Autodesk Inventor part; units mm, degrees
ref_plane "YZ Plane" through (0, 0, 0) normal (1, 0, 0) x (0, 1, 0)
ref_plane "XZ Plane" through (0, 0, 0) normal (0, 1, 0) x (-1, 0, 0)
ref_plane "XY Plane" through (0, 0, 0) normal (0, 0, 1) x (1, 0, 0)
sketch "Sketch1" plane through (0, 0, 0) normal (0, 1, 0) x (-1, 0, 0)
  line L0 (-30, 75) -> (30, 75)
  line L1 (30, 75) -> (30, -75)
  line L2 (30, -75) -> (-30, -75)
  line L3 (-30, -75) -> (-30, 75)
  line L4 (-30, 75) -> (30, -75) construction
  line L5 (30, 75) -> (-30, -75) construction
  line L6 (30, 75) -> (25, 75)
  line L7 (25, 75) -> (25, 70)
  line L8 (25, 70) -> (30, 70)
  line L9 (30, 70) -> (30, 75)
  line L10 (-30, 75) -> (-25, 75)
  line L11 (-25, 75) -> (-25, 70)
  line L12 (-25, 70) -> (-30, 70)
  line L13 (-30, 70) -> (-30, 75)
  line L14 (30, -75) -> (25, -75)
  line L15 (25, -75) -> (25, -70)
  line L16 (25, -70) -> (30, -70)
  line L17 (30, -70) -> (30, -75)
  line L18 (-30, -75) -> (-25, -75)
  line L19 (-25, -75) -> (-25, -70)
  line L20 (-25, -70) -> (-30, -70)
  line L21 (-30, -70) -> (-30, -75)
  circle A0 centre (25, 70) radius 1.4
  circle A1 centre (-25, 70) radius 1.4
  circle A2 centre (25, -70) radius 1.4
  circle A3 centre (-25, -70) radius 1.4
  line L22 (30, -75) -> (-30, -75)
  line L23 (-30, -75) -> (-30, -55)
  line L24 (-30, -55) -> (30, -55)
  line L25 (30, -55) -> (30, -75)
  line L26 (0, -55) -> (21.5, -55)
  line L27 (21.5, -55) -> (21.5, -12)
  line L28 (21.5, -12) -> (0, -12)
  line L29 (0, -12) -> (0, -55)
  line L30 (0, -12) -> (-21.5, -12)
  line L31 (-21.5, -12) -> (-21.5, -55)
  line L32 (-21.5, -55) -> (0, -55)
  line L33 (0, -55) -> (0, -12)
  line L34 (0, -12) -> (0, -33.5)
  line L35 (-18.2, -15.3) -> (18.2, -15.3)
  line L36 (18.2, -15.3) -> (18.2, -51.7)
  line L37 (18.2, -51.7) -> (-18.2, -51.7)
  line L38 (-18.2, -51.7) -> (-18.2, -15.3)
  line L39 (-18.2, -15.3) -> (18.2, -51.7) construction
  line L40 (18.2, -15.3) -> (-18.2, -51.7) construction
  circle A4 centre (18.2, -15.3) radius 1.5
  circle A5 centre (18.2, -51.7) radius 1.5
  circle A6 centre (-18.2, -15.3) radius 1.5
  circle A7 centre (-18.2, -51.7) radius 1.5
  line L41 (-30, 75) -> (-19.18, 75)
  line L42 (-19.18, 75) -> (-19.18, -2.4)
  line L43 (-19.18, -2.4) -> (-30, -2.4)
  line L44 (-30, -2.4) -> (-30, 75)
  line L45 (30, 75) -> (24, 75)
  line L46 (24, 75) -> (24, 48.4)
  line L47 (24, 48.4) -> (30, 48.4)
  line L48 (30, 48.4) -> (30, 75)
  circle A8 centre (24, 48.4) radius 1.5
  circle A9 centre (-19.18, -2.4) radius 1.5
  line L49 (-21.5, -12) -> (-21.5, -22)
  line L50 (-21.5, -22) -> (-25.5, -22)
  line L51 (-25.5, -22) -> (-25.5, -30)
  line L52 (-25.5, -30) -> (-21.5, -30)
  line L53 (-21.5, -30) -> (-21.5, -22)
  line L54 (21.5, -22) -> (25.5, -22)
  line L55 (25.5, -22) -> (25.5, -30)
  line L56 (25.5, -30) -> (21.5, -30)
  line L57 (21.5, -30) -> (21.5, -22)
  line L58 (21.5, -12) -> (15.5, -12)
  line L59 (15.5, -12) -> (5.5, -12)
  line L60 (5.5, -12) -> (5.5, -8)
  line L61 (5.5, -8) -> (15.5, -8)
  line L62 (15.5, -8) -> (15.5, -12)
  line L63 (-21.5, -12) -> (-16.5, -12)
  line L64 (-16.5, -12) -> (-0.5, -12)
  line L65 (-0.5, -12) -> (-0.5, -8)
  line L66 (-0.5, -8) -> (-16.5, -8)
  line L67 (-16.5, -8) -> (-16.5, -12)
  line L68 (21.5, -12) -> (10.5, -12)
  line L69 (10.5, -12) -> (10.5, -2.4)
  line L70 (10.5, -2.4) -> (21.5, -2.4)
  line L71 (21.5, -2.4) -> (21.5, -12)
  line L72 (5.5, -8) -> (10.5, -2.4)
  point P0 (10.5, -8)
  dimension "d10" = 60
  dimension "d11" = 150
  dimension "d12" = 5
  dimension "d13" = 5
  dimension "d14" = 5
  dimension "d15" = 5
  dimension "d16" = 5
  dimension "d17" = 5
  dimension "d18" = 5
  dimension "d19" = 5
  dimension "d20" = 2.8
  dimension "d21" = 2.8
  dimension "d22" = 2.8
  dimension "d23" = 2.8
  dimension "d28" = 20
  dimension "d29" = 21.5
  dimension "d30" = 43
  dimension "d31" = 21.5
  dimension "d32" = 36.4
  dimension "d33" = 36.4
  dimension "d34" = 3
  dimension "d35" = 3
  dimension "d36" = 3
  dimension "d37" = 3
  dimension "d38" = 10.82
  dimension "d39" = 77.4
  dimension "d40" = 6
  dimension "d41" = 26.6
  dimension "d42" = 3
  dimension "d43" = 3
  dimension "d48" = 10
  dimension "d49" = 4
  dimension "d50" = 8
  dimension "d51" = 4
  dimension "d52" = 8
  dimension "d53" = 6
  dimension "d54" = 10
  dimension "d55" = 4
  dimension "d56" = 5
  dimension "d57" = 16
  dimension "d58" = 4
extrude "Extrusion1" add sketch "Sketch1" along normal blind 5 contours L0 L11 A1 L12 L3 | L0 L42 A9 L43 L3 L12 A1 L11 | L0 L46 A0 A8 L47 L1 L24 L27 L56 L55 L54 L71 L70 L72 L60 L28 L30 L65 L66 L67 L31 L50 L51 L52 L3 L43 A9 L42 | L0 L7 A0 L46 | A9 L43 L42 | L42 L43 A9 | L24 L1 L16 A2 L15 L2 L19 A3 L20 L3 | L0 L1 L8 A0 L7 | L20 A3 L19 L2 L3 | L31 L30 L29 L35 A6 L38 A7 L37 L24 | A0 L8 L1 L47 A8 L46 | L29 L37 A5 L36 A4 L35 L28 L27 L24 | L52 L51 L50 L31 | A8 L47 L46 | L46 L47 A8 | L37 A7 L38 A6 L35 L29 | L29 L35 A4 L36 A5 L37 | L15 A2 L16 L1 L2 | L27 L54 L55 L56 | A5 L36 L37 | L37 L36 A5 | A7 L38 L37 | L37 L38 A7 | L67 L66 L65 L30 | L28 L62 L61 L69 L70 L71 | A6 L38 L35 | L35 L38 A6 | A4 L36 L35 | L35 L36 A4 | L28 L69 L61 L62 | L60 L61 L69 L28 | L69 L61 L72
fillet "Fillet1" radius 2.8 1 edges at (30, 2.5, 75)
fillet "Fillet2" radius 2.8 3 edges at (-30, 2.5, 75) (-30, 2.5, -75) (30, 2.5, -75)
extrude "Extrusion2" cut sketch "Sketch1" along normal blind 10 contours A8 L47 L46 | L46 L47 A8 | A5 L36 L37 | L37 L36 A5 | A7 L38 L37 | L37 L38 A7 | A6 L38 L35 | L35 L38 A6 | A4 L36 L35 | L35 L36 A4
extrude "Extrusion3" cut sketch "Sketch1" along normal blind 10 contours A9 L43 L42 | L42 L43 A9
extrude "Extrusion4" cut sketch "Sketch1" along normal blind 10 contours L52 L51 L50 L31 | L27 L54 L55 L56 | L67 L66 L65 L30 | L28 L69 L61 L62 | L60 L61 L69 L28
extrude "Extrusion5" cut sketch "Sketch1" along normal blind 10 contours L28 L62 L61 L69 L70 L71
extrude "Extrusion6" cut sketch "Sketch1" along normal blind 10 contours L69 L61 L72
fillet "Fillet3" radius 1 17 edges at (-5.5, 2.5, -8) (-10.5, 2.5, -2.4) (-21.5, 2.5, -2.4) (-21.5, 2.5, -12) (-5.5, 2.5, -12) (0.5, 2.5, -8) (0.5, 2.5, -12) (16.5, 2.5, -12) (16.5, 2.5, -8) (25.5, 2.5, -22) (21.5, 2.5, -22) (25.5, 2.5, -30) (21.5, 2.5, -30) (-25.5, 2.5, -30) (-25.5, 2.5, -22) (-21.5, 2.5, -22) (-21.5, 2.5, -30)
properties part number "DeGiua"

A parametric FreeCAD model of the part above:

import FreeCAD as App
import Part
import Sketcher

V = App.Vector
Q = App.Units.Quantity


def edges_at(feature, points):
    """Names of the edges that pass closest to the given points."""
    edges = feature.Shape.Edges
    near = lambda p: min(range(len(edges)), key=lambda i: edges[i].distToShape(Part.Vertex(*p))[0])
    return sorted({f"Edge{near(p) + 1}" for p in points})


def add_polygon(sketch, points):
    """Adds a closed chain of lines whose ends are joined by coincident constraints."""
    first, n = sketch.GeometryCount, len(points)
    for a, b in zip(points, points[1:] + points[:1]):
        sketch.addGeometry(Part.LineSegment(App.Vector(*a, 0), App.Vector(*b, 0)), False)
    for i in range(n):
        sketch.addConstraint(Sketcher.Constraint("Coincident", first + i, 2, first + (i + 1) % n, 1))

doc = App.newDocument("Part")
body = doc.addObject("PartDesign::Body", "Body")

sketch1 = body.newObject("Sketcher::SketchObject", "Sketch")
sketch1.AttachmentSupport = (doc.getObject("XZ_Plane"), [""])
sketch1.MapMode = "FlatFace"
add_polygon(sketch1, [(30, 75), (30, -75), (-30, -75), (-30, 75)])
sketch1.addGeometry(Part.Circle(V(25, 70, 0), V(0, 0, 1), 1.4), False)
sketch1.addGeometry(Part.Circle(V(-25, 70, 0), V(0, 0, 1), 1.4), False)
sketch1.addGeometry(Part.Circle(V(-25, -70, 0), V(0, 0, 1), 1.4), False)
sketch1.addGeometry(Part.Circle(V(25, -70, 0), V(0, 0, 1), 1.4), False)
sketch1.addConstraint(Sketcher.Constraint("Vertical", 0))
sketch1.addConstraint(Sketcher.Constraint("Horizontal", 1))
sketch1.addConstraint(Sketcher.Constraint("Vertical", 2))
sketch1.addConstraint(Sketcher.Constraint("Horizontal", 3))
sketch1.addConstraint(Sketcher.Constraint("Equal", 4, 5))
sketch1.addConstraint(Sketcher.Constraint("Equal", 5, 6))
sketch1.addConstraint(Sketcher.Constraint("Equal", 6, 7))
sketch1.addConstraint(Sketcher.Constraint("Symmetric", 4, 3, 6, 3, -1, 1))
sketch1.addConstraint(Sketcher.Constraint("Symmetric", 5, 3, 7, 3, -1, 1))
sketch1.addConstraint(Sketcher.Constraint("Symmetric", 0, 2, 2, 2, -1, 1))
sketch1.addConstraint(Sketcher.Constraint("Symmetric", 4, 3, 5, 3, -2))
sketch1.addConstraint(Sketcher.Constraint("Diameter", 4, Q("2.8 mm")))
sketch1.addConstraint(Sketcher.Constraint("DistanceX", 1, 2, 1, 1, Q("60 mm")))
sketch1.addConstraint(Sketcher.Constraint("DistanceY", 0, 2, 0, 1, Q("150 mm")))
sketch1.addConstraint(Sketcher.Constraint("DistanceX", 7, 3, 0, 2, Q("5 mm")))
sketch1.addConstraint(Sketcher.Constraint("DistanceY", 0, 2, 7, 3, Q("5 mm")))
pad1 = body.newObject("PartDesign::Pad", "Pad")
pad1.Profile = sketch1
pad1.Length = 5
pad1.Reversed = True
doc.recompute()

fillet = body.newObject("PartDesign::Fillet", "Fillet")
fillet.Base = (pad1, edges_at(pad1, [(30, 2.5, 75)]))
fillet.Radius = 2.8
doc.recompute()

fillet2 = body.newObject("PartDesign::Fillet", "Fillet001")
fillet2.Base = (fillet, edges_at(fillet, [(-30, 2.5, 75), (-30, 2.5, -75), (30, 2.5, -75)]))
fillet2.Radius = 2.8

sketch2 = body.newObject("Sketcher::SketchObject", "Sketch001")
sketch2.AttachmentSupport = (doc.getObject("XZ_Plane"), [""])
sketch2.MapMode = "FlatFace"
sketch2.addGeometry(Part.Circle(V(-24, 48.4, 0), V(0, 0, 1), 1.5), False)
sketch2.addGeometry(Part.Circle(V(-18.2, -51.7, 0), V(0, 0, 1), 1.5), False)
sketch2.addGeometry(Part.Circle(V(18.2, -51.7, 0), V(0, 0, 1), 1.5), False)
sketch2.addGeometry(Part.Circle(V(18.2, -15.3, 0), V(0, 0, 1), 1.5), False)
sketch2.addGeometry(Part.Circle(V(-18.2, -15.3, 0), V(0, 0, 1), 1.5), False)
sketch2.addConstraint(Sketcher.Constraint("Equal", 0, 1))
sketch2.addConstraint(Sketcher.Constraint("Equal", 1, 2))
sketch2.addConstraint(Sketcher.Constraint("Equal", 2, 3))
sketch2.addConstraint(Sketcher.Constraint("Equal", 3, 4))
sketch2.addConstraint(Sketcher.Constraint("Symmetric", 1, 3, 2, 3, -2))
sketch2.addConstraint(Sketcher.Constraint("Symmetric", 3, 3, 4, 3, -2))
sketch2.addConstraint(Sketcher.Constraint("Vertical", 2, 3, 3, 3))
sketch2.addConstraint(Sketcher.Constraint("Diameter", 0, Q("3 mm")))
sketch2.addConstraint(Sketcher.Constraint("DistanceX", 1, 3, 2, 3, Q("36.4 mm")))
sketch2.addConstraint(Sketcher.Constraint("DistanceY", 2, 3, 3, 3, Q("36.4 mm")))
sketch2.addConstraint(Sketcher.Constraint("DistanceX", 0, 3, -1, 1, Q("24 mm")))
sketch2.addConstraint(Sketcher.Constraint("DistanceY", -1, 1, 0, 3, Q("48.4 mm")))
sketch2.addConstraint(Sketcher.Constraint("DistanceY", 1, 3, -1, 1, Q("51.7 mm")))
pocket1 = body.newObject("PartDesign::Pocket", "Pocket")
pocket1.Profile = sketch2
pocket1.Length = 10

sketch3 = body.newObject("Sketcher::SketchObject", "Sketch002")
sketch3.AttachmentSupport = (doc.getObject("XZ_Plane"), [""])
sketch3.MapMode = "FlatFace"
sketch3.addGeometry(Part.Circle(V(19.2, -2.4, 0), V(0, 0, 1), 1.5), False)
sketch3.addConstraint(Sketcher.Constraint("Diameter", 0, Q("3 mm")))
sketch3.addConstraint(Sketcher.Constraint("DistanceY", 0, 3, -1, 1, Q("2.4 mm")))
sketch3.addConstraint(Sketcher.Constraint("DistanceX", -1, 1, 0, 3, Q("19.18 mm")))
pocket2 = body.newObject("PartDesign::Pocket", "Pocket001")
pocket2.Profile = sketch3
pocket2.Length = 10

sketch4 = body.newObject("Sketcher::SketchObject", "Sketch003")
sketch4.AttachmentSupport = (doc.getObject("XZ_Plane"), [""])
sketch4.MapMode = "FlatFace"
add_polygon(sketch4, [(25.5, -30), (21.5, -30), (21.5, -22), (25.5, -22)])
add_polygon(sketch4, [(-21.5, -22), (-21.5, -30), (-25.5, -30), (-25.5, -22)])
add_polygon(sketch4, [(16.5, -8), (16.5, -12), (0.5, -12), (0.5, -8)])
add_polygon(sketch4, [(-15.5, -12), (-15.5, -8), (-5.5, -8), (-5.5, -12)])
sketch4.addConstraint(Sketcher.Constraint("Horizontal", 0))
sketch4.addConstraint(Sketcher.Constraint("Vertical", 1))
sketch4.addConstraint(Sketcher.Constraint("Horizontal", 2))
sketch4.addConstraint(Sketcher.Constraint("Vertical", 3))
sketch4.addConstraint(Sketcher.Constraint("Vertical", 4))
sketch4.addConstraint(Sketcher.Constraint("Horizontal", 5))
sketch4.addConstraint(Sketcher.Constraint("Vertical", 6))
sketch4.addConstraint(Sketcher.Constraint("Horizontal", 7))
sketch4.addConstraint(Sketcher.Constraint("Vertical", 8))
sketch4.addConstraint(Sketcher.Constraint("Horizontal", 9))
sketch4.addConstraint(Sketcher.Constraint("Vertical", 10))
sketch4.addConstraint(Sketcher.Constraint("Horizontal", 11))
sketch4.addConstraint(Sketcher.Constraint("Vertical", 12))
sketch4.addConstraint(Sketcher.Constraint("Horizontal", 13))
sketch4.addConstraint(Sketcher.Constraint("Vertical", 14))
sketch4.addConstraint(Sketcher.Constraint("Horizontal", 15))
sketch4.addConstraint(Sketcher.Constraint("Symmetric", 0, 2, 4, 2, -2))
sketch4.addConstraint(Sketcher.Constraint("Symmetric", 2, 2, 6, 2, -2))
sketch4.addConstraint(Sketcher.Constraint("Horizontal", 11, 2, 12, 2))
sketch4.addConstraint(Sketcher.Constraint("Horizontal", 9, 2, 14, 2))
sketch4.addConstraint(Sketcher.Constraint("Equal", 7, 8))
sketch4.addConstraint(Sketcher.Constraint("DistanceX", 0, 2, 0, 1, Q("4 mm")))
sketch4.addConstraint(Sketcher.Constraint("DistanceX", 9, 2, 9, 1, Q("16 mm")))
sketch4.addConstraint(Sketcher.Constraint("DistanceX", 13, 1, 13, 2, Q("10 mm")))
sketch4.addConstraint(Sketcher.Constraint("DistanceY", 1, 1, 1, 2, Q("8 mm")))
sketch4.addConstraint(Sketcher.Constraint("DistanceY", 10, 2, -1, 1, Q("8 mm")))
sketch4.addConstraint(Sketcher.Constraint("DistanceX", 4, 2, 0, 2, Q("43 mm")))
sketch4.addConstraint(Sketcher.Constraint("DistanceX", 8, 2, 1, 2, Q("5 mm")))
sketch4.addConstraint(Sketcher.Constraint("DistanceY", 1, 2, 8, 2, Q("10 mm")))
sketch4.addConstraint(Sketcher.Constraint("DistanceX", 7, 2, 12, 2, Q("6 mm")))
pocket3 = body.newObject("PartDesign::Pocket", "Pocket002")
pocket3.Profile = sketch4
pocket3.Length = 10

sketch5 = body.newObject("Sketcher::SketchObject", "Sketch004")
sketch5.AttachmentSupport = (doc.getObject("XZ_Plane"), [""])
sketch5.MapMode = "FlatFace"
add_polygon(sketch5, [(-15.5, -12), (-21.5, -12), (-21.5, -2.4), (-10.5, -2.4), (-10.5, -8), (-15.5, -8)])
sketch5.addConstraint(Sketcher.Constraint("Horizontal", 0))
sketch5.addConstraint(Sketcher.Constraint("Vertical", 1))
sketch5.addConstraint(Sketcher.Constraint("Horizontal", 2))
sketch5.addConstraint(Sketcher.Constraint("Vertical", 3))
sketch5.addConstraint(Sketcher.Constraint("Horizontal", 4))
sketch5.addConstraint(Sketcher.Constraint("Vertical", 5))
sketch5.addConstraint(Sketcher.Constraint("DistanceX", 0, 2, 0, 1, Q("6 mm")))
sketch5.addConstraint(Sketcher.Constraint("DistanceX", 4, 2, 4, 1, Q("5 mm")))
sketch5.addConstraint(Sketcher.Constraint("DistanceY", 5, 2, 5, 1, Q("4 mm")))
sketch5.addConstraint(Sketcher.Constraint("DistanceY", 3, 2, -1, 1, Q("8 mm")))
sketch5.addConstraint(Sketcher.Constraint("DistanceX", 0, 2, -1, 1, Q("21.5 mm")))
sketch5.addConstraint(Sketcher.Constraint("DistanceY", 1, 1, 1, 2, Q("9.6 mm")))
pocket4 = body.newObject("PartDesign::Pocket", "Pocket003")
pocket4.Profile = sketch5
pocket4.Length = 10

sketch6 = body.newObject("Sketcher::SketchObject", "Sketch005")
sketch6.AttachmentSupport = (doc.getObject("XZ_Plane"), [""])
sketch6.MapMode = "FlatFace"
add_polygon(sketch6, [(-10, -8), (-10, -2), (-6, -8)])
sketch6.addConstraint(Sketcher.Constraint("Vertical", 0))
sketch6.addConstraint(Sketcher.Constraint("Horizontal", 2))
sketch6.addConstraint(Sketcher.Constraint("DistanceX", 2, 2, 2, 1, Q("5 mm")))
sketch6.addConstraint(Sketcher.Constraint("DistanceY", 1, 2, -1, 1, Q("8 mm")))
sketch6.addConstraint(Sketcher.Constraint("DistanceY", 0, 1, 0, 2, Q("5.6 mm")))
sketch6.addConstraint(Sketcher.Constraint("DistanceX", 0, 2, -1, 1, Q("10.5 mm")))
pocket5 = body.newObject("PartDesign::Pocket", "Pocket004")
pocket5.Profile = sketch6
pocket5.Length = 10
doc.recompute()

fillet3 = body.newObject("PartDesign::Fillet", "Fillet002")
fillet3.Base = (pocket5, edges_at(pocket5, [
    (-5.5, 2.5, -8),
    (-10.5, 2.5, -2.4),
    (-21.5, 2.5, -2.4),
    (-21.5, 2.5, -12),
    (-5.5, 2.5, -12),
    (0.5, 2.5, -8),
    (0.5, 2.5, -12),
    (16.5, 2.5, -12),
    (16.5, 2.5, -8),
    (25.5, 2.5, -22),
    (21.5, 2.5, -22),
    (25.5, 2.5, -30),
    (21.5, 2.5, -30),
    (-25.5, 2.5, -30),
    (-25.5, 2.5, -22),
    (-21.5, 2.5, -22),
    (-21.5, 2.5, -30),
]))
fillet3.Radius = 1

doc.recompute()
